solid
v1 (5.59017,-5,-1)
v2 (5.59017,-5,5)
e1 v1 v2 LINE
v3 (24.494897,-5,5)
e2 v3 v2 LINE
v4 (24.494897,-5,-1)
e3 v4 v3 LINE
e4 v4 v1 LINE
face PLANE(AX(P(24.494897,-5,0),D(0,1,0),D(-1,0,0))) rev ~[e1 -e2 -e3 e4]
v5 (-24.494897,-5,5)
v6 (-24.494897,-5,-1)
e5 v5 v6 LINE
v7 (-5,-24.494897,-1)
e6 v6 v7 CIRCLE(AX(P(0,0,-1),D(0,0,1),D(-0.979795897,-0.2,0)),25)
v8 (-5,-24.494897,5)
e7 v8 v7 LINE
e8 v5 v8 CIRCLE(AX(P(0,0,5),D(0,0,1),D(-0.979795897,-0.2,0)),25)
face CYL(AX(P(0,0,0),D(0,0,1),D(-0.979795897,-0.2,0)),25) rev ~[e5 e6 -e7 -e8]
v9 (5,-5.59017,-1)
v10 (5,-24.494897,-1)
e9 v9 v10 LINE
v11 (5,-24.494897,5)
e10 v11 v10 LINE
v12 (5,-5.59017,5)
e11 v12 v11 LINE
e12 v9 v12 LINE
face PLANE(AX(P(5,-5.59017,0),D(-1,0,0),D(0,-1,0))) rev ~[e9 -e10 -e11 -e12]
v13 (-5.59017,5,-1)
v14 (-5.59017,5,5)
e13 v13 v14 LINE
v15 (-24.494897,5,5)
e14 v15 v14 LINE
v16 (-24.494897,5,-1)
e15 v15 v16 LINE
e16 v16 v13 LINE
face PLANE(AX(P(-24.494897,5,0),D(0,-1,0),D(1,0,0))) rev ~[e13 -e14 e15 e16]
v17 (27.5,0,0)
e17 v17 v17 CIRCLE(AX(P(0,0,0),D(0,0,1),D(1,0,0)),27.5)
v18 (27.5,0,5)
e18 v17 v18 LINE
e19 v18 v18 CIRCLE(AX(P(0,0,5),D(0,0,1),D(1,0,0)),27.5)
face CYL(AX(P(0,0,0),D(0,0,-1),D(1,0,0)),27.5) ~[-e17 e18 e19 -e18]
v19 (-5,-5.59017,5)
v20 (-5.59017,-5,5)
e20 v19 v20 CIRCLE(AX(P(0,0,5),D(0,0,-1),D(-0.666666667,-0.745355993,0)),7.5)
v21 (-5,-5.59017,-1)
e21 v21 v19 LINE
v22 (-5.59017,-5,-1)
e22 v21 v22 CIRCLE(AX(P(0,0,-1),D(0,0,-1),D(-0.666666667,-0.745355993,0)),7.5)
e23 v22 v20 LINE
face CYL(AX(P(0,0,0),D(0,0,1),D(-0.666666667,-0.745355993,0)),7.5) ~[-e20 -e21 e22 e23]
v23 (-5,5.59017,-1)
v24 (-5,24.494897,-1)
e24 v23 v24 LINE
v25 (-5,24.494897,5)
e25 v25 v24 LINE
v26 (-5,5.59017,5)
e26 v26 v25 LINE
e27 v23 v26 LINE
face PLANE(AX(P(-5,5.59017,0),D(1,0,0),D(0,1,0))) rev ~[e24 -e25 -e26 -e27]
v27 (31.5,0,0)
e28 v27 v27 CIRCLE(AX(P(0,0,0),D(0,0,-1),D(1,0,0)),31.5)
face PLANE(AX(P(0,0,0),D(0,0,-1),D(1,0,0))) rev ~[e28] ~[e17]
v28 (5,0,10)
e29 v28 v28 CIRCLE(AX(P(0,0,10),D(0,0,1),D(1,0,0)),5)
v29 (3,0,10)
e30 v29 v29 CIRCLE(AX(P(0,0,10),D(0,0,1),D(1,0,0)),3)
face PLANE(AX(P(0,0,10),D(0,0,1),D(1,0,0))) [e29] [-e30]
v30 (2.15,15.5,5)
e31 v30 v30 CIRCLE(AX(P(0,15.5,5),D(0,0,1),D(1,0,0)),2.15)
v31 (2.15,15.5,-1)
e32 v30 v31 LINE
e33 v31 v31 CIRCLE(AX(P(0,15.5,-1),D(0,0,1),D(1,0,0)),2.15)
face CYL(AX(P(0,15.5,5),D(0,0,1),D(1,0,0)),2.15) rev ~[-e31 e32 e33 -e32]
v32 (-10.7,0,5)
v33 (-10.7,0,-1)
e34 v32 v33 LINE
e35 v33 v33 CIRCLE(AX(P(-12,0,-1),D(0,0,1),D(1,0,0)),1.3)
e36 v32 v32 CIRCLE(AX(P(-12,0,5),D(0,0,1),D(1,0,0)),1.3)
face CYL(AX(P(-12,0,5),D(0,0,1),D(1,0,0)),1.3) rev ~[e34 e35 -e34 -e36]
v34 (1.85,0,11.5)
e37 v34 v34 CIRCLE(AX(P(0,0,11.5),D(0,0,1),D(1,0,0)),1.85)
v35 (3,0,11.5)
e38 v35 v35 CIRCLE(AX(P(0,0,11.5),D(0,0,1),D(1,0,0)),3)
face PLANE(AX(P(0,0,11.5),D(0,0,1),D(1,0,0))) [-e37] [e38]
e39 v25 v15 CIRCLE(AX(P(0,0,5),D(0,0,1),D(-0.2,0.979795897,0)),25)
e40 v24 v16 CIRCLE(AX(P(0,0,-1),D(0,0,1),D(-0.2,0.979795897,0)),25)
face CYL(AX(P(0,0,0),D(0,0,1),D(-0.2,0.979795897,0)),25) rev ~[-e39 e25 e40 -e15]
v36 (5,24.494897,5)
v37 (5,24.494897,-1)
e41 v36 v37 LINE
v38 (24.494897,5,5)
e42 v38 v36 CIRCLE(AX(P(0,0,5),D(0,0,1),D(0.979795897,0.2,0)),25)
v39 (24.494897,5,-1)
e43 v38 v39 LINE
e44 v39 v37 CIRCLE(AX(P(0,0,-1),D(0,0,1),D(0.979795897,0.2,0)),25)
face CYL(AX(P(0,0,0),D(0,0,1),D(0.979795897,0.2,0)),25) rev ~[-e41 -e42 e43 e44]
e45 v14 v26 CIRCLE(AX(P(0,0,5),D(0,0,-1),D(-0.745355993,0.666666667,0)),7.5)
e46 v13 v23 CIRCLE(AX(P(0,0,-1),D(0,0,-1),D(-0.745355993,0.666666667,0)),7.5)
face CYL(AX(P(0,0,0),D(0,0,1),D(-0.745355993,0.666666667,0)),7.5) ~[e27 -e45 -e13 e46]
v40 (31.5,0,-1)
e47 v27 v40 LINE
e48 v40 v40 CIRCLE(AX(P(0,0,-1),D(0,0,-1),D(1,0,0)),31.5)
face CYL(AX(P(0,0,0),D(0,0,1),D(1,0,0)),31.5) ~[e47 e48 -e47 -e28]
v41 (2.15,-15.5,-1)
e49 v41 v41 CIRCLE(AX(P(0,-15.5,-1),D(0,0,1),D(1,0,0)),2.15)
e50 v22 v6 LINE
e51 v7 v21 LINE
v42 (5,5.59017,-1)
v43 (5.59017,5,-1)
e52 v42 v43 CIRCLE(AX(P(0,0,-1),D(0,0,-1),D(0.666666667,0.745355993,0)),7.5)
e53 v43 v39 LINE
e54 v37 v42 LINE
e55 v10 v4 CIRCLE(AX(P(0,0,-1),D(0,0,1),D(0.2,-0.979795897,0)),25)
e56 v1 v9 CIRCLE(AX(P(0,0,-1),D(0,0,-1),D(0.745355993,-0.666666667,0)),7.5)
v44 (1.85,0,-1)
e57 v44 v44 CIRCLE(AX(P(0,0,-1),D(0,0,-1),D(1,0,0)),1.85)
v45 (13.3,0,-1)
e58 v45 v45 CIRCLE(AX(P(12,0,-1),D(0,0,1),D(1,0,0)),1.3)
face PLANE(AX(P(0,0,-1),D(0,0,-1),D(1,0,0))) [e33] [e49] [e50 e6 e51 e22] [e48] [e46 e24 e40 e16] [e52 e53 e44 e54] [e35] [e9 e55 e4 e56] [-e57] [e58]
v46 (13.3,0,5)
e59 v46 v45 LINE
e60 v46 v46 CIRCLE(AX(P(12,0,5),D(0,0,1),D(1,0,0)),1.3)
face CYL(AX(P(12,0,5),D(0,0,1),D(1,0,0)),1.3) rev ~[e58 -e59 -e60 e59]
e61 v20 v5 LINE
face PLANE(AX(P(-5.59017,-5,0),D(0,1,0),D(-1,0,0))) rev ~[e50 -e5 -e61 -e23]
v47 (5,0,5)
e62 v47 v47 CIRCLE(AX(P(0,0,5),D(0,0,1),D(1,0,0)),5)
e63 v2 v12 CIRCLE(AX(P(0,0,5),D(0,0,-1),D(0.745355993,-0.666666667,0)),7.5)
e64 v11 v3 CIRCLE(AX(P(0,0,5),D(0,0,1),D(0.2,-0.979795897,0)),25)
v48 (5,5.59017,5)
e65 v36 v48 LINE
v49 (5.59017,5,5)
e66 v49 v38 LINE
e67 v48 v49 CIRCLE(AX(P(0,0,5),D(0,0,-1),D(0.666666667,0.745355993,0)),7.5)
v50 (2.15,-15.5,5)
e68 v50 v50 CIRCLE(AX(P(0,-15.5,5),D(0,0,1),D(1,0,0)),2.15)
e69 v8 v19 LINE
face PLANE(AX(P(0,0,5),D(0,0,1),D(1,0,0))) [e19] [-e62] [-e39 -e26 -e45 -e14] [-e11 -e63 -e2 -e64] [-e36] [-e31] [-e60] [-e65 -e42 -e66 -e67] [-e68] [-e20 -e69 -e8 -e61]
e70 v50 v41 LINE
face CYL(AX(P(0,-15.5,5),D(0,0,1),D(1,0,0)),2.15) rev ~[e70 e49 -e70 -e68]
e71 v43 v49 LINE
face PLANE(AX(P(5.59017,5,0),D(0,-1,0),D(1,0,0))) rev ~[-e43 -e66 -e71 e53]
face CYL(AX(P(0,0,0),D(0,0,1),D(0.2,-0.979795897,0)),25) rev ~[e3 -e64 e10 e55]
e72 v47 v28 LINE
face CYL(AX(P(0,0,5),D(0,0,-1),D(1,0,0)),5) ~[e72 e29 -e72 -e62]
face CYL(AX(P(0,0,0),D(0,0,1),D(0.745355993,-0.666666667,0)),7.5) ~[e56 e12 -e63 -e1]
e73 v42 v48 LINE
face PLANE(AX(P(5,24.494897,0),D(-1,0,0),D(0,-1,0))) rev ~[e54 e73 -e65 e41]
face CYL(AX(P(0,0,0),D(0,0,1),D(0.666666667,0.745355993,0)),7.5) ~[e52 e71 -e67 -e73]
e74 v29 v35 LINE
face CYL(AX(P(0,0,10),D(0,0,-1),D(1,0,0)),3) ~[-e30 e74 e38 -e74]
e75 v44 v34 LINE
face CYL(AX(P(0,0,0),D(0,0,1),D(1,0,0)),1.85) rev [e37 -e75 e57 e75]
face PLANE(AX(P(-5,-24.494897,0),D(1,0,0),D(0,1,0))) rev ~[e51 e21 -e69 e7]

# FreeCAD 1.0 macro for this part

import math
import FreeCAD as App
import Part
import Sketcher

V = App.Vector

doc = App.newDocument("Part")
body = doc.addObject("PartDesign::Body", "Body")

# Sketch on XY plane
sketch1 = body.newObject("Sketcher::SketchObject", "Sketch")
sketch1.AttachmentSupport = (doc.getObject("XY_Plane"), [""])
sketch1.MapMode = "FlatFace"
sketch1.addGeometry(Part.Circle(V(0, 0, 0), V(0, 0, 1), 28), False)
sketch1.addConstraint([
    Sketcher.Constraint("Coincident", 0, 3, -1, 1),
    Sketcher.Constraint("Diameter", 0, 55.0),
])
pad1 = body.newObject("PartDesign::Pad", "Pad")
pad1.Profile = sketch1
pad1.Length = 5

# Sketch on XY plane
sketch2 = body.newObject("Sketcher::SketchObject", "Sketch001")
sketch2.AttachmentSupport = (doc.getObject("XY_Plane"), [""])
sketch2.MapMode = "FlatFace"
sketch2.AttachmentOffset = App.Placement(V(0, 0, 5), App.Rotation())
sketch2.addGeometry(Part.Circle(V(0, 0, 0), V(0, 0, 1), 5), False)
sketch2.addConstraint([
    Sketcher.Constraint("Coincident", 0, 3, -1, 1),
    Sketcher.Constraint("Diameter", 0, 10.0),
])
pad2 = body.newObject("PartDesign::Pad", "Pad001")
pad2.Profile = sketch2
pad2.Length = 5

# Sketch on XY plane
sketch3 = body.newObject("Sketcher::SketchObject", "Sketch002")
sketch3.AttachmentSupport = (doc.getObject("XY_Plane"), [""])
sketch3.MapMode = "FlatFace"
sketch3.AttachmentOffset = App.Placement(V(0, 0, 10), App.Rotation())
sketch3.addGeometry(Part.Circle(V(0, 0, 0), V(0, 0, 1), 1.9), False)
sketch3.addConstraint([
    Sketcher.Constraint("Coincident", 0, 3, -1, 1),
    Sketcher.Constraint("Diameter", 0, 3.7),
])
pocket1 = body.newObject("PartDesign::Pocket", "Pocket")
pocket1.Profile = sketch3
pocket1.Type = "ThroughAll"

# Sketch on XY plane
sketch4 = body.newObject("Sketcher::SketchObject", "Sketch003")
sketch4.AttachmentSupport = (doc.getObject("XY_Plane"), [""])
sketch4.MapMode = "FlatFace"
sketch4.AttachmentOffset = App.Placement(V(0, 0, 10), App.Rotation())
sketch4.addGeometry([
    Part.Circle(V(0, 0, 0), V(0, 0, 1), 3),
    Part.Circle(V(0, 0, 0), V(0, 0, 1), 1.9),
], False)
sketch4.addConstraint([
    Sketcher.Constraint("Coincident", 0, 3, -1, 1),
    Sketcher.Constraint("Coincident", 1, 3, -1, 1),
    Sketcher.Constraint("Diameter", 0, 6.0),
    Sketcher.Constraint("Diameter", 1, 3.7),
])
pad3 = body.newObject("PartDesign::Pad", "Pad002")
pad3.Profile = sketch4
pad3.Length = 1.5

# Sketch on XY plane
sketch5 = body.newObject("Sketcher::SketchObject", "Sketch004")
sketch5.AttachmentSupport = (doc.getObject("XY_Plane"), [""])
sketch5.MapMode = "FlatFace"
sketch5.AttachmentOffset = App.Placement(V(0, 0, 5), App.Rotation())
sketch5.addGeometry([
    Part.LineSegment(V(5.6, 5, 0), V(24.5, 5, 0)),  # 0
    Part.ArcOfCircle(Part.Circle(V(0, 0, 0), V(0, 0, 1), 25), math.radians(12), math.radians(78)),  # 1
    Part.LineSegment(V(5, 24.5, 0), V(5, 5.6, 0)),  # 2
    Part.ArcOfCircle(Part.Circle(V(0, 0, 0), V(0, 0, 1), 7.5), math.radians(41.81), math.radians(48.19)),  # 3
    Part.LineSegment(V(-5, 5.6, 0), V(-5, 24.5, 0)),  # 4
    Part.ArcOfCircle(Part.Circle(V(0, 0, 0), V(0, 0, 1), 25), math.radians(102), math.radians(168)),  # 5
    Part.LineSegment(V(-24.5, 5, 0), V(-5.6, 5, 0)),  # 6
    Part.ArcOfCircle(Part.Circle(V(0, 0, 0), V(0, 0, 1), 7.5), math.radians(131.81), math.radians(138.19)),  # 7
    Part.ArcOfCircle(Part.Circle(V(0, 0, 0), V(0, 0, 1), 25), math.radians(-168), math.radians(-102)),  # 8
    Part.LineSegment(V(-5, -24.5, 0), V(-5, -5.6, 0)),  # 9
    Part.ArcOfCircle(Part.Circle(V(0, 0, 0), V(0, 0, 1), 7.5), math.radians(-138.19), math.radians(-131.81)),  # 10
    Part.LineSegment(V(-5.6, -5, 0), V(-24.5, -5, 0)),  # 11
    Part.ArcOfCircle(Part.Circle(V(0, 0, 0), V(0, 0, 1), 25), math.radians(-78), math.radians(-12)),  # 12
    Part.LineSegment(V(24.5, -5, 0), V(5.6, -5, 0)),  # 13
    Part.ArcOfCircle(Part.Circle(V(0, 0, 0), V(0, 0, 1), 7.5), math.radians(-48.19), math.radians(-41.81)),  # 14
    Part.LineSegment(V(5, -5.6, 0), V(5, -24.5, 0)),  # 15
], False)
sketch5.addConstraint([
    Sketcher.Constraint("Coincident", 0, 2, 1, 1),
    Sketcher.Constraint("Coincident", 1, 2, 2, 1),
    Sketcher.Constraint("Coincident", 2, 2, 3, 2),
    Sketcher.Constraint("Coincident", 3, 1, 0, 1),
    Sketcher.Constraint("Coincident", 4, 2, 5, 1),
    Sketcher.Constraint("Coincident", 5, 2, 6, 1),
    Sketcher.Constraint("Coincident", 6, 2, 7, 2),
    Sketcher.Constraint("Coincident", 7, 1, 4, 1),
    Sketcher.Constraint("Coincident", 8, 2, 9, 1),
    Sketcher.Constraint("Coincident", 9, 2, 10, 2),
    Sketcher.Constraint("Coincident", 10, 1, 11, 1),
    Sketcher.Constraint("Coincident", 11, 2, 8, 1),
    Sketcher.Constraint("Coincident", 12, 2, 13, 1),
    Sketcher.Constraint("Coincident", 13, 2, 14, 2),
    Sketcher.Constraint("Coincident", 14, 1, 15, 1),
    Sketcher.Constraint("Coincident", 15, 2, 12, 1),
    Sketcher.Constraint("Horizontal", 0),
    Sketcher.Constraint("Vertical", 2),
    Sketcher.Constraint("Vertical", 4),
    Sketcher.Constraint("Horizontal", 6),
    Sketcher.Constraint("Vertical", 9),
    Sketcher.Constraint("Horizontal", 11),
    Sketcher.Constraint("Horizontal", 13),
    Sketcher.Constraint("Vertical", 15),
    Sketcher.Constraint("Coincident", 1, 3, -1, 1),
    Sketcher.Constraint("Coincident", 3, 3, -1, 1),
    Sketcher.Constraint("Coincident", 5, 3, -1, 1),
    Sketcher.Constraint("Coincident", 7, 3, -1, 1),
    Sketcher.Constraint("Coincident", 8, 3, -1, 1),
    Sketcher.Constraint("Coincident", 10, 3, -1, 1),
    Sketcher.Constraint("Coincident", 12, 3, -1, 1),
    Sketcher.Constraint("Coincident", 14, 3, -1, 1),
    Sketcher.Constraint("Equal", 1, 5),
    Sketcher.Constraint("Equal", 3, 7),
    Sketcher.Constraint("Equal", 5, 8),
    Sketcher.Constraint("Equal", 7, 10),
    Sketcher.Constraint("Equal", 8, 12),
    Sketcher.Constraint("Equal", 10, 14),
    Sketcher.Constraint("Horizontal", 1, 2, 4, 2),
    Sketcher.Constraint("Horizontal", 3, 1, 5, 2),
    Sketcher.Constraint("Horizontal", 11, 2, 12, 2),
    Sketcher.Constraint("Horizontal", 9, 2, 14, 1),
    Sketcher.Constraint("Vertical", 7, 1, 8, 2),
    Sketcher.Constraint("Vertical", 6, 2, 10, 1),
    Sketcher.Constraint("Equal", 13, 2),
    Sketcher.Constraint("Radius", 1, 25.0),
    Sketcher.Constraint("Radius", 3, 7.5),
    Sketcher.Constraint("DistanceY", -1, 1, 0, 2, 5.0),
])
pocket2 = body.newObject("PartDesign::Pocket", "Pocket001")
pocket2.Profile = sketch5
pocket2.Type = "ThroughAll"

# Sketch on XY plane
sketch6 = body.newObject("Sketcher::SketchObject", "Sketch005")
sketch6.AttachmentSupport = (doc.getObject("XY_Plane"), [""])
sketch6.MapMode = "FlatFace"
sketch6.addGeometry([
    Part.Circle(V(0, 0, 0), V(0, 0, 1), 31.5),  # 0
    Part.LineSegment(V(-5, 5.6, 0), V(-5, 24.5, 0)),  # 1
    Part.ArcOfCircle(Part.Circle(V(0, 0, 0), V(0, 0, 1), 25), math.radians(102), math.radians(168)),  # 2
    Part.LineSegment(V(-24.5, 5, 0), V(-5.6, 5, 0)),  # 3
    Part.ArcOfCircle(Part.Circle(V(0, 0, 0), V(0, 0, 1), 7.5), math.radians(131.81), math.radians(138.19)),  # 4
    Part.LineSegment(V(5.6, 5, 0), V(24.5, 5, 0)),  # 5
    Part.ArcOfCircle(Part.Circle(V(0, 0, 0), V(0, 0, 1), 25), math.radians(12), math.radians(78)),  # 6
    Part.LineSegment(V(5, 24.5, 0), V(5, 5.6, 0)),  # 7
    Part.ArcOfCircle(Part.Circle(V(0, 0, 0), V(0, 0, 1), 7.5), math.radians(41.81), math.radians(48.19)),  # 8
    Part.LineSegment(V(-5.6, -5, 0), V(-24.5, -5, 0)),  # 9
    Part.ArcOfCircle(Part.Circle(V(0, 0, 0), V(0, 0, 1), 25), math.radians(-168), math.radians(-102)),  # 10
    Part.LineSegment(V(-5, -24.5, 0), V(-5, -5.6, 0)),  # 11
    Part.ArcOfCircle(Part.Circle(V(0, 0, 0), V(0, 0, 1), 7.5), math.radians(-138.19), math.radians(-131.81)),  # 12
    Part.Circle(V(0, 0, 0), V(0, 0, 1), 1.9),  # 13
    Part.LineSegment(V(5, -5.6, 0), V(5, -24.5, 0)),  # 14
    Part.ArcOfCircle(Part.Circle(V(0, 0, 0), V(0, 0, 1), 25), math.radians(-78), math.radians(-12)),  # 15
    Part.LineSegment(V(24.5, -5, 0), V(5.6, -5, 0)),  # 16
    Part.ArcOfCircle(Part.Circle(V(0, 0, 0), V(0, 0, 1), 7.5), math.radians(-48.19), math.radians(-41.81)),  # 17
], False)
sketch6.addConstraint([
    Sketcher.Constraint("Coincident", 1, 2, 2, 1),
    Sketcher.Constraint("Coincident", 2, 2, 3, 1),
    Sketcher.Constraint("Coincident", 3, 2, 4, 2),
    Sketcher.Constraint("Coincident", 4, 1, 1, 1),
    Sketcher.Constraint("Coincident", 5, 2, 6, 1),
    Sketcher.Constraint("Coincident", 6, 2, 7, 1),
    Sketcher.Constraint("Coincident", 7, 2, 8, 2),
    Sketcher.Constraint("Coincident", 8, 1, 5, 1),
    Sketcher.Constraint("Coincident", 9, 2, 10, 1),
    Sketcher.Constraint("Coincident", 10, 2, 11, 1),
    Sketcher.Constraint("Coincident", 11, 2, 12, 2),
    Sketcher.Constraint("Coincident", 12, 1, 9, 1),
    Sketcher.Constraint("Coincident", 14, 2, 15, 1),
    Sketcher.Constraint("Coincident", 15, 2, 16, 1),
    Sketcher.Constraint("Coincident", 16, 2, 17, 2),
    Sketcher.Constraint("Coincident", 17, 1, 14, 1),
    Sketcher.Constraint("Vertical", 1),
    Sketcher.Constraint("Horizontal", 3),
    Sketcher.Constraint("Horizontal", 5),
    Sketcher.Constraint("Vertical", 7),
    Sketcher.Constraint("Horizontal", 9),
    Sketcher.Constraint("Vertical", 11),
    Sketcher.Constraint("Vertical", 14),
    Sketcher.Constraint("Horizontal", 16),
    Sketcher.Constraint("Coincident", 0, 3, -1, 1),
    Sketcher.Constraint("Coincident", 2, 3, -1, 1),
    Sketcher.Constraint("Coincident", 4, 3, -1, 1),
    Sketcher.Constraint("Coincident", 6, 3, -1, 1),
    Sketcher.Constraint("Coincident", 8, 3, -1, 1),
    Sketcher.Constraint("Coincident", 10, 3, -1, 1),
    Sketcher.Constraint("Coincident", 12, 3, -1, 1),
    Sketcher.Constraint("Coincident", 13, 3, -1, 1),
    Sketcher.Constraint("Coincident", 15, 3, -1, 1),
    Sketcher.Constraint("Coincident", 17, 3, -1, 1),
    Sketcher.Constraint("Equal", 2, 6),
    Sketcher.Constraint("Equal", 4, 8),
    Sketcher.Constraint("Equal", 6, 10),
    Sketcher.Constraint("Equal", 8, 12),
    Sketcher.Constraint("Equal", 10, 15),
    Sketcher.Constraint("Equal", 12, 17),
    Sketcher.Constraint("Horizontal", 3, 2, 5, 2),
    Sketcher.Constraint("Horizontal", 1, 2, 6, 2),
    Sketcher.Constraint("Horizontal", 10, 2, 14, 2),
    Sketcher.Constraint("Horizontal", 12, 1, 15, 2),
    Sketcher.Constraint("Vertical", 2, 2, 9, 2),
    Sketcher.Constraint("Vertical", 4, 1, 10, 2),
    Sketcher.Constraint("Equal", 16, 1),
    Sketcher.Constraint("Diameter", 0, 63.0),
    Sketcher.Constraint("Radius", 2, 25.0),
    Sketcher.Constraint("Diameter", 13, 3.7),
    Sketcher.Constraint("Radius", 4, 7.5),
    Sketcher.Constraint("DistanceX", 1, 2, -1, 1, 5.0),
])
pad4 = body.newObject("PartDesign::Pad", "Pad003")
pad4.Profile = sketch6
pad4.Length = 1
pad4.Reversed = True

# Sketch on XY plane
sketch7 = body.newObject("Sketcher::SketchObject", "Sketch006")
sketch7.AttachmentSupport = (doc.getObject("XY_Plane"), [""])
sketch7.MapMode = "FlatFace"
sketch7.AttachmentOffset = App.Placement(V(0, 0, 5), App.Rotation())
sketch7.addGeometry([
    Part.Circle(V(-12, 0, 0), V(0, 0, 1), 1.3),
    Part.Circle(V(0, -15.5, 0), V(0, 0, 1), 2.1),
    Part.Circle(V(12, 0, 0), V(0, 0, 1), 1.3),
    Part.Circle(V(0, 15.5, 0), V(0, 0, 1), 2.1),
], False)
sketch7.addConstraint([
    Sketcher.Constraint("Equal", 0, 2),
    Sketcher.Constraint("Equal", 1, 3),
    Sketcher.Constraint("Symmetric", 0, 3, 2, 3, -1, 1),
    Sketcher.Constraint("Symmetric", 1, 3, 3, 3, -1, 1),
    Sketcher.Constraint("PointOnObject", 0, 3, -1),
    Sketcher.Constraint("PointOnObject", 1, 3, -2),
    Sketcher.Constraint("Diameter", 0, 2.6),
    Sketcher.Constraint("Diameter", 1, 4.3),
    Sketcher.Constraint("DistanceX", 0, 3, -1, 1, 12.0),
    Sketcher.Constraint("DistanceY", 1, 3, 3, 3, 31.0),
])
pocket3 = body.newObject("PartDesign::Pocket", "Pocket002")
pocket3.Profile = sketch7
pocket3.Type = "ThroughAll"

doc.recompute()
